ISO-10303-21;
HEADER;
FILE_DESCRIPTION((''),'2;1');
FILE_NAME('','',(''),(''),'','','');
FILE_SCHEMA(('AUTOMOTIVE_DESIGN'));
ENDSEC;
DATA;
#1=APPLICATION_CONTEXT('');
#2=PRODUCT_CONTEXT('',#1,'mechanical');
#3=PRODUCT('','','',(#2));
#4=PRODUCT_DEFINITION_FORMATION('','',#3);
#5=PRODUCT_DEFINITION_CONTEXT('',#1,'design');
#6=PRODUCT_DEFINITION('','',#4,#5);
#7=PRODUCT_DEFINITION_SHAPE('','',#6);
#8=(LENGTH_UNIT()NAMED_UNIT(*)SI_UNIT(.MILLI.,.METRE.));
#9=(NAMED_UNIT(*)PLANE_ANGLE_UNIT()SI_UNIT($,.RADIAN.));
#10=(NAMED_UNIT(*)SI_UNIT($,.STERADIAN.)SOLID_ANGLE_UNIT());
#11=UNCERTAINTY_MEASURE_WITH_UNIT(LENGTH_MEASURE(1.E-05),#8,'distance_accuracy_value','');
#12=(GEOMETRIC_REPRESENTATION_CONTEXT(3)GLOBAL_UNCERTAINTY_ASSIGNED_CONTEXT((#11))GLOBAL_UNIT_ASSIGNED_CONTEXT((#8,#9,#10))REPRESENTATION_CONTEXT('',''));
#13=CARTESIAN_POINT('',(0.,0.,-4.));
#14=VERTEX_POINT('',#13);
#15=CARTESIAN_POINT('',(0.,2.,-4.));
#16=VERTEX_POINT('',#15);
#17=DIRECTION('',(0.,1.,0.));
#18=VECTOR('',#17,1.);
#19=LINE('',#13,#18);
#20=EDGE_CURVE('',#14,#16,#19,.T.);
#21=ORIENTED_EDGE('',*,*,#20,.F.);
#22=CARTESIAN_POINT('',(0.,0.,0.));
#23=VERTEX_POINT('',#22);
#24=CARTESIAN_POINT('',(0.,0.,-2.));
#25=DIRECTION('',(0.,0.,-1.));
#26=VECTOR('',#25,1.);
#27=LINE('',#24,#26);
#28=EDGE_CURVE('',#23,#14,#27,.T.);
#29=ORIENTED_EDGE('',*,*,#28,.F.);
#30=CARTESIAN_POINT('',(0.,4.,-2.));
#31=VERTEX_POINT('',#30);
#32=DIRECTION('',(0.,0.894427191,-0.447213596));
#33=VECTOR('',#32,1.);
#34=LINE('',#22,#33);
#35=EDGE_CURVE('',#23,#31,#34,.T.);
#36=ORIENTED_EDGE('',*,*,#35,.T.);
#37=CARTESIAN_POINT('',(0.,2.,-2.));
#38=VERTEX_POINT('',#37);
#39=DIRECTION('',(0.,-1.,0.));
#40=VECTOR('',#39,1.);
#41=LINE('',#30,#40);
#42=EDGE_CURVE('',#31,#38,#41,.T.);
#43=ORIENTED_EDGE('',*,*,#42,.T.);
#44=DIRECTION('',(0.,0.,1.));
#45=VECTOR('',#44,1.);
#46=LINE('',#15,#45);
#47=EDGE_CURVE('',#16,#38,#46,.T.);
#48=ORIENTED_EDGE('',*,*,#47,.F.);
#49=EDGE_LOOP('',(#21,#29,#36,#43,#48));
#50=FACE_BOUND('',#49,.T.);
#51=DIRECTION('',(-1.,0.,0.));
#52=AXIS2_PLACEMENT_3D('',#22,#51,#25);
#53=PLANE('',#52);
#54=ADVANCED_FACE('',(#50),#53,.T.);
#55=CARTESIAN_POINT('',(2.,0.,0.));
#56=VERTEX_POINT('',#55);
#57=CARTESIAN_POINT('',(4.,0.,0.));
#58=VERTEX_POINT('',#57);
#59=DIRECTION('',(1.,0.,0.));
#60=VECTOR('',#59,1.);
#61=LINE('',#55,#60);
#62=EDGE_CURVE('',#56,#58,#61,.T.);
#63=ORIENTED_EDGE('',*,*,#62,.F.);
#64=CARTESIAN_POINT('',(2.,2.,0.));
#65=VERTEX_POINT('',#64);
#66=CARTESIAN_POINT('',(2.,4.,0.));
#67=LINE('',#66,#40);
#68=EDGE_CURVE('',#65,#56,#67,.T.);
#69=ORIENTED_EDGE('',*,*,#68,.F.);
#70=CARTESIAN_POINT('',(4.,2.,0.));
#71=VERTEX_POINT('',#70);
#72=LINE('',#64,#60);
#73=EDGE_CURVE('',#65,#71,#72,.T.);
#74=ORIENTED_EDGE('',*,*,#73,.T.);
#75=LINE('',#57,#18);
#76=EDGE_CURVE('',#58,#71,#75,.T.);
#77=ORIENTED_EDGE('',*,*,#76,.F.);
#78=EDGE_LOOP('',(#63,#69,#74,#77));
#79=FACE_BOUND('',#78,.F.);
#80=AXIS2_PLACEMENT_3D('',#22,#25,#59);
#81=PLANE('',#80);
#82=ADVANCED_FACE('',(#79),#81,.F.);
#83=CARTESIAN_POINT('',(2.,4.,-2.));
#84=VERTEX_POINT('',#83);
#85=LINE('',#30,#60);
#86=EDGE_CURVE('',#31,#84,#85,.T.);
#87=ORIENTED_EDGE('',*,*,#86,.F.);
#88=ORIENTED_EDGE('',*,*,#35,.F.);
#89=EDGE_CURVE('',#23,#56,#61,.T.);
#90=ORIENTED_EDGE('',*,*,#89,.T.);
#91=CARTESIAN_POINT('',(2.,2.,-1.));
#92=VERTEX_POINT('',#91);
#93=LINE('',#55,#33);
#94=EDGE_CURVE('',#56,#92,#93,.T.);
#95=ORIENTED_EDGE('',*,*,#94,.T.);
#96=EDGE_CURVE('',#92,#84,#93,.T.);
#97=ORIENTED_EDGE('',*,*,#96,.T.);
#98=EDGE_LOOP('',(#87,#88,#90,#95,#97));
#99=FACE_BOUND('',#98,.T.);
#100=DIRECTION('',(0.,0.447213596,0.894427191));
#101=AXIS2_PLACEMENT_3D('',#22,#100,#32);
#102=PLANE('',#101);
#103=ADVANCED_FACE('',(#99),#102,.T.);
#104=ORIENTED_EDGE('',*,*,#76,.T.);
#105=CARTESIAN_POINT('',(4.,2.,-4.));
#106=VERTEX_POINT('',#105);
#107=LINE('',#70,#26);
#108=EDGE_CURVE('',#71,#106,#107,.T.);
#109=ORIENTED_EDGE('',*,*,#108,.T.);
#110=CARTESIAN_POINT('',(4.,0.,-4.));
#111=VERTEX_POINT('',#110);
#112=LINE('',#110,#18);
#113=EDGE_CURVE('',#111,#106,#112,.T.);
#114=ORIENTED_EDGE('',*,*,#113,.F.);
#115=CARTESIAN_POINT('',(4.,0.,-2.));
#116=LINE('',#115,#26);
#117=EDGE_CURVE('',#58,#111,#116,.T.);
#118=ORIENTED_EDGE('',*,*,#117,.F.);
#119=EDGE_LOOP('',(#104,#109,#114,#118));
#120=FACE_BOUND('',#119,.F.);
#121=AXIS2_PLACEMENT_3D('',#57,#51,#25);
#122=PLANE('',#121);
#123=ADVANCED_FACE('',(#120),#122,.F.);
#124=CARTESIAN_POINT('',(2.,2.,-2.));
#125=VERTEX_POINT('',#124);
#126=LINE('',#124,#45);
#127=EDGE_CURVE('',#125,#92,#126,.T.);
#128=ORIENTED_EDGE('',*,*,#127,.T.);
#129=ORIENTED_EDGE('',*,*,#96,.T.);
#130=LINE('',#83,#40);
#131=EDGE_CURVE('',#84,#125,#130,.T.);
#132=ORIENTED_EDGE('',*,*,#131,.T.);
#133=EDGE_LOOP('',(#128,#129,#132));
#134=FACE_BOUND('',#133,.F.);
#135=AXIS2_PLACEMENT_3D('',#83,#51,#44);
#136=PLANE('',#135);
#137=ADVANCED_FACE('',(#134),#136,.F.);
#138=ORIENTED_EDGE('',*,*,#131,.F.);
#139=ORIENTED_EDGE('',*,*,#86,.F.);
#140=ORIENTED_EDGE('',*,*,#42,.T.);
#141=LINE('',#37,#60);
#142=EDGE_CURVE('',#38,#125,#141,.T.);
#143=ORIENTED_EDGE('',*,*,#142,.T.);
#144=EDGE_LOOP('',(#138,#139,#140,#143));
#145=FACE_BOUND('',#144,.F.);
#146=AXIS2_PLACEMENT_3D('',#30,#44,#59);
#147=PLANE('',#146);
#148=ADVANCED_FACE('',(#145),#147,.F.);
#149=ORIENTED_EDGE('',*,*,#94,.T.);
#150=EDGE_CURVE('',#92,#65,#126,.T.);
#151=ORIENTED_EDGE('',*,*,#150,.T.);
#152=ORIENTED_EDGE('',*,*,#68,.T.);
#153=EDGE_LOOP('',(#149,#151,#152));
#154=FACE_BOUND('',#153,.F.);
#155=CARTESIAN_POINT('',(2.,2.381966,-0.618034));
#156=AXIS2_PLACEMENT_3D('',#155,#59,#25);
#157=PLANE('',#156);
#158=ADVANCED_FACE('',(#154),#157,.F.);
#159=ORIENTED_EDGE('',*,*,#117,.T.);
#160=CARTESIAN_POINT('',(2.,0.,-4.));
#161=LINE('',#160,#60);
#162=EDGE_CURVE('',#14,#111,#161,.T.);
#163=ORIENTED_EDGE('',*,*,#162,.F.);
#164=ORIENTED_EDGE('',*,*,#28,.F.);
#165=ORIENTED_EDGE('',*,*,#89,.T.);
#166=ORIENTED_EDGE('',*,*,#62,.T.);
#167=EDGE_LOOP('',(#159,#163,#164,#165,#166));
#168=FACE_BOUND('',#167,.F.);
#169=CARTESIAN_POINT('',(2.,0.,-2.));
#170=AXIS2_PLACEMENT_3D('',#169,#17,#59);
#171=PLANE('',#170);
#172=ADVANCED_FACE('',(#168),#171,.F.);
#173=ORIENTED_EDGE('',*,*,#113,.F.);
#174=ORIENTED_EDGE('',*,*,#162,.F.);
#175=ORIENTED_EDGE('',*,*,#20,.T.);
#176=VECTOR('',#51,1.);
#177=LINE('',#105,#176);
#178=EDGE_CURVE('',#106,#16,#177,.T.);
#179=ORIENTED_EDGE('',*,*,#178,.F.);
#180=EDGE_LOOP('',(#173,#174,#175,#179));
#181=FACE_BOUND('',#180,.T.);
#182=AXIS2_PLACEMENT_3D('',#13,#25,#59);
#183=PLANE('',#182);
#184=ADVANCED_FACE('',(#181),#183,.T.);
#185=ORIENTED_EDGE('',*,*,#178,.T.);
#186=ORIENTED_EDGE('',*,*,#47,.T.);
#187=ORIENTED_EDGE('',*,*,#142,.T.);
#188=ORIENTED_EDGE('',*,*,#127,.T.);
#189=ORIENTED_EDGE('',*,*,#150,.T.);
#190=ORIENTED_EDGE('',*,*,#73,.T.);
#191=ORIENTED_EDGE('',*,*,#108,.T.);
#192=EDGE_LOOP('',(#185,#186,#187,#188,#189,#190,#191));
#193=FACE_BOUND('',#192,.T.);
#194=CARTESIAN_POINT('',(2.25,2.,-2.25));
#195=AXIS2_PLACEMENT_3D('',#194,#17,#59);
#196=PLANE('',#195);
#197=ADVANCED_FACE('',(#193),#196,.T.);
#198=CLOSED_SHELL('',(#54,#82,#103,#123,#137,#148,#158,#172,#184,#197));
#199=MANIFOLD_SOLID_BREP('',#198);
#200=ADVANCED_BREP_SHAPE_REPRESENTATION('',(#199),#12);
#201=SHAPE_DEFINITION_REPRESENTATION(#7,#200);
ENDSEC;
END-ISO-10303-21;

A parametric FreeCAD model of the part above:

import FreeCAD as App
import Part
import Sketcher
from FreeCAD import Vector


def add_polygon(sketch, points):
    """Adds a closed chain of lines whose ends are joined by coincident constraints."""
    first, n = sketch.GeometryCount, len(points)
    for a, b in zip(points, points[1:] + points[:1]):
        sketch.addGeometry(Part.LineSegment(App.Vector(*a, 0), App.Vector(*b, 0)), False)
    for i in range(n):
        sketch.addConstraint(Sketcher.Constraint("Coincident", first + i, 2, first + (i + 1) % n, 1))

doc = App.newDocument("Part")
params = doc.addObject("Spreadsheet::Sheet", "Params")
for row, (alias, value) in enumerate([
    ("sketch1_width", "4 mm"),
    ("pad1_length", "4 mm"),
    ("sketch2_width", "2 mm"),
    ("pocket1_length", "2 mm"),
    ("sketch3_width", "4 mm"),
    ("sketch3_height", "2 mm"),
    ("pocket2_length", "2 mm"),
], start=1):
    params.set(f"A{row}", alias)
    params.set(f"B{row}", "=" + value)
    params.setAlias(f"B{row}", alias)

body = doc.addObject("PartDesign::Body", "Body")

# Sketch on XZ plane
sketch1 = body.newObject("Sketcher::SketchObject", "Sketch")
sketch1.AttachmentSupport = (doc.getObject("XZ_Plane"), [""])
sketch1.MapMode = "FlatFace"
add_polygon(sketch1, [(0, -4), (0, 0), (4, 0), (4, -4)])  # lines 0-3
sketch1.addConstraint(Sketcher.Constraint("Vertical", 0))
sketch1.addConstraint(Sketcher.Constraint("Horizontal", 1))
sketch1.addConstraint(Sketcher.Constraint("Vertical", 2))
sketch1.addConstraint(Sketcher.Constraint("Horizontal", 3))
sketch1.addConstraint(Sketcher.Constraint("Coincident", 0, 2, -1, 1))
sketch1.addConstraint(Sketcher.Constraint("Equal", 3, 0))
sketch1.addConstraint(Sketcher.Constraint("DistanceX", 1, 1, 1, 2, 4.0))
sketch1.setExpression("Constraints[10]", "Params.sketch1_width")
pad1 = body.newObject("PartDesign::Pad", "Pad")
pad1.Profile = sketch1
pad1.setExpression("Length", "Params.pad1_length")
pad1.Reversed = True

# Sketch on XZ plane
sketch2 = body.newObject("Sketcher::SketchObject", "Sketch001")
sketch2.AttachmentSupport = (doc.getObject("XZ_Plane"), [""])
sketch2.MapMode = "FlatFace"
sketch2.AttachmentOffset = App.Placement(Vector(0, 0, -4), App.Rotation())
add_polygon(sketch2, [(0, -4), (0, -2), (2, -2), (2, 0), (4, 0), (4, -4)])  # lines 0-5
sketch2.addConstraint(Sketcher.Constraint("Vertical", 0))
sketch2.addConstraint(Sketcher.Constraint("Horizontal", 1))
sketch2.addConstraint(Sketcher.Constraint("Vertical", 2))
sketch2.addConstraint(Sketcher.Constraint("Horizontal", 3))
sketch2.addConstraint(Sketcher.Constraint("Vertical", 4))
sketch2.addConstraint(Sketcher.Constraint("Horizontal", 5))
sketch2.addConstraint(Sketcher.Constraint("PointOnObject", 0, 2, -2))
sketch2.addConstraint(Sketcher.Constraint("PointOnObject", 2, 2, -1))
sketch2.addConstraint(Sketcher.Constraint("Equal", 1, 3))
sketch2.addConstraint(Sketcher.Constraint("Equal", 3, 0))
sketch2.addConstraint(Sketcher.Constraint("Equal", 0, 2))
sketch2.addConstraint(Sketcher.Constraint("DistanceX", 1, 1, 1, 2, 2.0))
sketch2.setExpression("Constraints[17]", "Params.sketch2_width")
pocket1 = body.newObject("PartDesign::Pocket", "Pocket")
pocket1.Profile = sketch2
pocket1.setExpression("Length", "Params.pocket1_length")
pocket1.Reversed = True

# Sketch on YZ plane
sketch3 = body.newObject("Sketcher::SketchObject", "Sketch002")
sketch3.AttachmentSupport = (doc.getObject("YZ_Plane"), [""])
sketch3.MapMode = "FlatFace"
add_polygon(sketch3, [(4, -2), (0, 0), (4, 0)])  # lines 0-2
sketch3.addConstraint(Sketcher.Constraint("Horizontal", 1))
sketch3.addConstraint(Sketcher.Constraint("Vertical", 2))
sketch3.addConstraint(Sketcher.Constraint("Coincident", 0, 2, -1, 1))
sketch3.addConstraint(Sketcher.Constraint("DistanceX", 1, 1, 1, 2, 4.0))
sketch3.addConstraint(Sketcher.Constraint("DistanceY", 2, 2, 2, 1, 2.0))
sketch3.setExpression("Constraints[6]", "Params.sketch3_width")
sketch3.setExpression("Constraints[7]", "Params.sketch3_height")
pocket2 = body.newObject("PartDesign::Pocket", "Pocket001")
pocket2.Profile = sketch3
pocket2.setExpression("Length", "Params.pocket2_length")
pocket2.Reversed = True

doc.recompute()
